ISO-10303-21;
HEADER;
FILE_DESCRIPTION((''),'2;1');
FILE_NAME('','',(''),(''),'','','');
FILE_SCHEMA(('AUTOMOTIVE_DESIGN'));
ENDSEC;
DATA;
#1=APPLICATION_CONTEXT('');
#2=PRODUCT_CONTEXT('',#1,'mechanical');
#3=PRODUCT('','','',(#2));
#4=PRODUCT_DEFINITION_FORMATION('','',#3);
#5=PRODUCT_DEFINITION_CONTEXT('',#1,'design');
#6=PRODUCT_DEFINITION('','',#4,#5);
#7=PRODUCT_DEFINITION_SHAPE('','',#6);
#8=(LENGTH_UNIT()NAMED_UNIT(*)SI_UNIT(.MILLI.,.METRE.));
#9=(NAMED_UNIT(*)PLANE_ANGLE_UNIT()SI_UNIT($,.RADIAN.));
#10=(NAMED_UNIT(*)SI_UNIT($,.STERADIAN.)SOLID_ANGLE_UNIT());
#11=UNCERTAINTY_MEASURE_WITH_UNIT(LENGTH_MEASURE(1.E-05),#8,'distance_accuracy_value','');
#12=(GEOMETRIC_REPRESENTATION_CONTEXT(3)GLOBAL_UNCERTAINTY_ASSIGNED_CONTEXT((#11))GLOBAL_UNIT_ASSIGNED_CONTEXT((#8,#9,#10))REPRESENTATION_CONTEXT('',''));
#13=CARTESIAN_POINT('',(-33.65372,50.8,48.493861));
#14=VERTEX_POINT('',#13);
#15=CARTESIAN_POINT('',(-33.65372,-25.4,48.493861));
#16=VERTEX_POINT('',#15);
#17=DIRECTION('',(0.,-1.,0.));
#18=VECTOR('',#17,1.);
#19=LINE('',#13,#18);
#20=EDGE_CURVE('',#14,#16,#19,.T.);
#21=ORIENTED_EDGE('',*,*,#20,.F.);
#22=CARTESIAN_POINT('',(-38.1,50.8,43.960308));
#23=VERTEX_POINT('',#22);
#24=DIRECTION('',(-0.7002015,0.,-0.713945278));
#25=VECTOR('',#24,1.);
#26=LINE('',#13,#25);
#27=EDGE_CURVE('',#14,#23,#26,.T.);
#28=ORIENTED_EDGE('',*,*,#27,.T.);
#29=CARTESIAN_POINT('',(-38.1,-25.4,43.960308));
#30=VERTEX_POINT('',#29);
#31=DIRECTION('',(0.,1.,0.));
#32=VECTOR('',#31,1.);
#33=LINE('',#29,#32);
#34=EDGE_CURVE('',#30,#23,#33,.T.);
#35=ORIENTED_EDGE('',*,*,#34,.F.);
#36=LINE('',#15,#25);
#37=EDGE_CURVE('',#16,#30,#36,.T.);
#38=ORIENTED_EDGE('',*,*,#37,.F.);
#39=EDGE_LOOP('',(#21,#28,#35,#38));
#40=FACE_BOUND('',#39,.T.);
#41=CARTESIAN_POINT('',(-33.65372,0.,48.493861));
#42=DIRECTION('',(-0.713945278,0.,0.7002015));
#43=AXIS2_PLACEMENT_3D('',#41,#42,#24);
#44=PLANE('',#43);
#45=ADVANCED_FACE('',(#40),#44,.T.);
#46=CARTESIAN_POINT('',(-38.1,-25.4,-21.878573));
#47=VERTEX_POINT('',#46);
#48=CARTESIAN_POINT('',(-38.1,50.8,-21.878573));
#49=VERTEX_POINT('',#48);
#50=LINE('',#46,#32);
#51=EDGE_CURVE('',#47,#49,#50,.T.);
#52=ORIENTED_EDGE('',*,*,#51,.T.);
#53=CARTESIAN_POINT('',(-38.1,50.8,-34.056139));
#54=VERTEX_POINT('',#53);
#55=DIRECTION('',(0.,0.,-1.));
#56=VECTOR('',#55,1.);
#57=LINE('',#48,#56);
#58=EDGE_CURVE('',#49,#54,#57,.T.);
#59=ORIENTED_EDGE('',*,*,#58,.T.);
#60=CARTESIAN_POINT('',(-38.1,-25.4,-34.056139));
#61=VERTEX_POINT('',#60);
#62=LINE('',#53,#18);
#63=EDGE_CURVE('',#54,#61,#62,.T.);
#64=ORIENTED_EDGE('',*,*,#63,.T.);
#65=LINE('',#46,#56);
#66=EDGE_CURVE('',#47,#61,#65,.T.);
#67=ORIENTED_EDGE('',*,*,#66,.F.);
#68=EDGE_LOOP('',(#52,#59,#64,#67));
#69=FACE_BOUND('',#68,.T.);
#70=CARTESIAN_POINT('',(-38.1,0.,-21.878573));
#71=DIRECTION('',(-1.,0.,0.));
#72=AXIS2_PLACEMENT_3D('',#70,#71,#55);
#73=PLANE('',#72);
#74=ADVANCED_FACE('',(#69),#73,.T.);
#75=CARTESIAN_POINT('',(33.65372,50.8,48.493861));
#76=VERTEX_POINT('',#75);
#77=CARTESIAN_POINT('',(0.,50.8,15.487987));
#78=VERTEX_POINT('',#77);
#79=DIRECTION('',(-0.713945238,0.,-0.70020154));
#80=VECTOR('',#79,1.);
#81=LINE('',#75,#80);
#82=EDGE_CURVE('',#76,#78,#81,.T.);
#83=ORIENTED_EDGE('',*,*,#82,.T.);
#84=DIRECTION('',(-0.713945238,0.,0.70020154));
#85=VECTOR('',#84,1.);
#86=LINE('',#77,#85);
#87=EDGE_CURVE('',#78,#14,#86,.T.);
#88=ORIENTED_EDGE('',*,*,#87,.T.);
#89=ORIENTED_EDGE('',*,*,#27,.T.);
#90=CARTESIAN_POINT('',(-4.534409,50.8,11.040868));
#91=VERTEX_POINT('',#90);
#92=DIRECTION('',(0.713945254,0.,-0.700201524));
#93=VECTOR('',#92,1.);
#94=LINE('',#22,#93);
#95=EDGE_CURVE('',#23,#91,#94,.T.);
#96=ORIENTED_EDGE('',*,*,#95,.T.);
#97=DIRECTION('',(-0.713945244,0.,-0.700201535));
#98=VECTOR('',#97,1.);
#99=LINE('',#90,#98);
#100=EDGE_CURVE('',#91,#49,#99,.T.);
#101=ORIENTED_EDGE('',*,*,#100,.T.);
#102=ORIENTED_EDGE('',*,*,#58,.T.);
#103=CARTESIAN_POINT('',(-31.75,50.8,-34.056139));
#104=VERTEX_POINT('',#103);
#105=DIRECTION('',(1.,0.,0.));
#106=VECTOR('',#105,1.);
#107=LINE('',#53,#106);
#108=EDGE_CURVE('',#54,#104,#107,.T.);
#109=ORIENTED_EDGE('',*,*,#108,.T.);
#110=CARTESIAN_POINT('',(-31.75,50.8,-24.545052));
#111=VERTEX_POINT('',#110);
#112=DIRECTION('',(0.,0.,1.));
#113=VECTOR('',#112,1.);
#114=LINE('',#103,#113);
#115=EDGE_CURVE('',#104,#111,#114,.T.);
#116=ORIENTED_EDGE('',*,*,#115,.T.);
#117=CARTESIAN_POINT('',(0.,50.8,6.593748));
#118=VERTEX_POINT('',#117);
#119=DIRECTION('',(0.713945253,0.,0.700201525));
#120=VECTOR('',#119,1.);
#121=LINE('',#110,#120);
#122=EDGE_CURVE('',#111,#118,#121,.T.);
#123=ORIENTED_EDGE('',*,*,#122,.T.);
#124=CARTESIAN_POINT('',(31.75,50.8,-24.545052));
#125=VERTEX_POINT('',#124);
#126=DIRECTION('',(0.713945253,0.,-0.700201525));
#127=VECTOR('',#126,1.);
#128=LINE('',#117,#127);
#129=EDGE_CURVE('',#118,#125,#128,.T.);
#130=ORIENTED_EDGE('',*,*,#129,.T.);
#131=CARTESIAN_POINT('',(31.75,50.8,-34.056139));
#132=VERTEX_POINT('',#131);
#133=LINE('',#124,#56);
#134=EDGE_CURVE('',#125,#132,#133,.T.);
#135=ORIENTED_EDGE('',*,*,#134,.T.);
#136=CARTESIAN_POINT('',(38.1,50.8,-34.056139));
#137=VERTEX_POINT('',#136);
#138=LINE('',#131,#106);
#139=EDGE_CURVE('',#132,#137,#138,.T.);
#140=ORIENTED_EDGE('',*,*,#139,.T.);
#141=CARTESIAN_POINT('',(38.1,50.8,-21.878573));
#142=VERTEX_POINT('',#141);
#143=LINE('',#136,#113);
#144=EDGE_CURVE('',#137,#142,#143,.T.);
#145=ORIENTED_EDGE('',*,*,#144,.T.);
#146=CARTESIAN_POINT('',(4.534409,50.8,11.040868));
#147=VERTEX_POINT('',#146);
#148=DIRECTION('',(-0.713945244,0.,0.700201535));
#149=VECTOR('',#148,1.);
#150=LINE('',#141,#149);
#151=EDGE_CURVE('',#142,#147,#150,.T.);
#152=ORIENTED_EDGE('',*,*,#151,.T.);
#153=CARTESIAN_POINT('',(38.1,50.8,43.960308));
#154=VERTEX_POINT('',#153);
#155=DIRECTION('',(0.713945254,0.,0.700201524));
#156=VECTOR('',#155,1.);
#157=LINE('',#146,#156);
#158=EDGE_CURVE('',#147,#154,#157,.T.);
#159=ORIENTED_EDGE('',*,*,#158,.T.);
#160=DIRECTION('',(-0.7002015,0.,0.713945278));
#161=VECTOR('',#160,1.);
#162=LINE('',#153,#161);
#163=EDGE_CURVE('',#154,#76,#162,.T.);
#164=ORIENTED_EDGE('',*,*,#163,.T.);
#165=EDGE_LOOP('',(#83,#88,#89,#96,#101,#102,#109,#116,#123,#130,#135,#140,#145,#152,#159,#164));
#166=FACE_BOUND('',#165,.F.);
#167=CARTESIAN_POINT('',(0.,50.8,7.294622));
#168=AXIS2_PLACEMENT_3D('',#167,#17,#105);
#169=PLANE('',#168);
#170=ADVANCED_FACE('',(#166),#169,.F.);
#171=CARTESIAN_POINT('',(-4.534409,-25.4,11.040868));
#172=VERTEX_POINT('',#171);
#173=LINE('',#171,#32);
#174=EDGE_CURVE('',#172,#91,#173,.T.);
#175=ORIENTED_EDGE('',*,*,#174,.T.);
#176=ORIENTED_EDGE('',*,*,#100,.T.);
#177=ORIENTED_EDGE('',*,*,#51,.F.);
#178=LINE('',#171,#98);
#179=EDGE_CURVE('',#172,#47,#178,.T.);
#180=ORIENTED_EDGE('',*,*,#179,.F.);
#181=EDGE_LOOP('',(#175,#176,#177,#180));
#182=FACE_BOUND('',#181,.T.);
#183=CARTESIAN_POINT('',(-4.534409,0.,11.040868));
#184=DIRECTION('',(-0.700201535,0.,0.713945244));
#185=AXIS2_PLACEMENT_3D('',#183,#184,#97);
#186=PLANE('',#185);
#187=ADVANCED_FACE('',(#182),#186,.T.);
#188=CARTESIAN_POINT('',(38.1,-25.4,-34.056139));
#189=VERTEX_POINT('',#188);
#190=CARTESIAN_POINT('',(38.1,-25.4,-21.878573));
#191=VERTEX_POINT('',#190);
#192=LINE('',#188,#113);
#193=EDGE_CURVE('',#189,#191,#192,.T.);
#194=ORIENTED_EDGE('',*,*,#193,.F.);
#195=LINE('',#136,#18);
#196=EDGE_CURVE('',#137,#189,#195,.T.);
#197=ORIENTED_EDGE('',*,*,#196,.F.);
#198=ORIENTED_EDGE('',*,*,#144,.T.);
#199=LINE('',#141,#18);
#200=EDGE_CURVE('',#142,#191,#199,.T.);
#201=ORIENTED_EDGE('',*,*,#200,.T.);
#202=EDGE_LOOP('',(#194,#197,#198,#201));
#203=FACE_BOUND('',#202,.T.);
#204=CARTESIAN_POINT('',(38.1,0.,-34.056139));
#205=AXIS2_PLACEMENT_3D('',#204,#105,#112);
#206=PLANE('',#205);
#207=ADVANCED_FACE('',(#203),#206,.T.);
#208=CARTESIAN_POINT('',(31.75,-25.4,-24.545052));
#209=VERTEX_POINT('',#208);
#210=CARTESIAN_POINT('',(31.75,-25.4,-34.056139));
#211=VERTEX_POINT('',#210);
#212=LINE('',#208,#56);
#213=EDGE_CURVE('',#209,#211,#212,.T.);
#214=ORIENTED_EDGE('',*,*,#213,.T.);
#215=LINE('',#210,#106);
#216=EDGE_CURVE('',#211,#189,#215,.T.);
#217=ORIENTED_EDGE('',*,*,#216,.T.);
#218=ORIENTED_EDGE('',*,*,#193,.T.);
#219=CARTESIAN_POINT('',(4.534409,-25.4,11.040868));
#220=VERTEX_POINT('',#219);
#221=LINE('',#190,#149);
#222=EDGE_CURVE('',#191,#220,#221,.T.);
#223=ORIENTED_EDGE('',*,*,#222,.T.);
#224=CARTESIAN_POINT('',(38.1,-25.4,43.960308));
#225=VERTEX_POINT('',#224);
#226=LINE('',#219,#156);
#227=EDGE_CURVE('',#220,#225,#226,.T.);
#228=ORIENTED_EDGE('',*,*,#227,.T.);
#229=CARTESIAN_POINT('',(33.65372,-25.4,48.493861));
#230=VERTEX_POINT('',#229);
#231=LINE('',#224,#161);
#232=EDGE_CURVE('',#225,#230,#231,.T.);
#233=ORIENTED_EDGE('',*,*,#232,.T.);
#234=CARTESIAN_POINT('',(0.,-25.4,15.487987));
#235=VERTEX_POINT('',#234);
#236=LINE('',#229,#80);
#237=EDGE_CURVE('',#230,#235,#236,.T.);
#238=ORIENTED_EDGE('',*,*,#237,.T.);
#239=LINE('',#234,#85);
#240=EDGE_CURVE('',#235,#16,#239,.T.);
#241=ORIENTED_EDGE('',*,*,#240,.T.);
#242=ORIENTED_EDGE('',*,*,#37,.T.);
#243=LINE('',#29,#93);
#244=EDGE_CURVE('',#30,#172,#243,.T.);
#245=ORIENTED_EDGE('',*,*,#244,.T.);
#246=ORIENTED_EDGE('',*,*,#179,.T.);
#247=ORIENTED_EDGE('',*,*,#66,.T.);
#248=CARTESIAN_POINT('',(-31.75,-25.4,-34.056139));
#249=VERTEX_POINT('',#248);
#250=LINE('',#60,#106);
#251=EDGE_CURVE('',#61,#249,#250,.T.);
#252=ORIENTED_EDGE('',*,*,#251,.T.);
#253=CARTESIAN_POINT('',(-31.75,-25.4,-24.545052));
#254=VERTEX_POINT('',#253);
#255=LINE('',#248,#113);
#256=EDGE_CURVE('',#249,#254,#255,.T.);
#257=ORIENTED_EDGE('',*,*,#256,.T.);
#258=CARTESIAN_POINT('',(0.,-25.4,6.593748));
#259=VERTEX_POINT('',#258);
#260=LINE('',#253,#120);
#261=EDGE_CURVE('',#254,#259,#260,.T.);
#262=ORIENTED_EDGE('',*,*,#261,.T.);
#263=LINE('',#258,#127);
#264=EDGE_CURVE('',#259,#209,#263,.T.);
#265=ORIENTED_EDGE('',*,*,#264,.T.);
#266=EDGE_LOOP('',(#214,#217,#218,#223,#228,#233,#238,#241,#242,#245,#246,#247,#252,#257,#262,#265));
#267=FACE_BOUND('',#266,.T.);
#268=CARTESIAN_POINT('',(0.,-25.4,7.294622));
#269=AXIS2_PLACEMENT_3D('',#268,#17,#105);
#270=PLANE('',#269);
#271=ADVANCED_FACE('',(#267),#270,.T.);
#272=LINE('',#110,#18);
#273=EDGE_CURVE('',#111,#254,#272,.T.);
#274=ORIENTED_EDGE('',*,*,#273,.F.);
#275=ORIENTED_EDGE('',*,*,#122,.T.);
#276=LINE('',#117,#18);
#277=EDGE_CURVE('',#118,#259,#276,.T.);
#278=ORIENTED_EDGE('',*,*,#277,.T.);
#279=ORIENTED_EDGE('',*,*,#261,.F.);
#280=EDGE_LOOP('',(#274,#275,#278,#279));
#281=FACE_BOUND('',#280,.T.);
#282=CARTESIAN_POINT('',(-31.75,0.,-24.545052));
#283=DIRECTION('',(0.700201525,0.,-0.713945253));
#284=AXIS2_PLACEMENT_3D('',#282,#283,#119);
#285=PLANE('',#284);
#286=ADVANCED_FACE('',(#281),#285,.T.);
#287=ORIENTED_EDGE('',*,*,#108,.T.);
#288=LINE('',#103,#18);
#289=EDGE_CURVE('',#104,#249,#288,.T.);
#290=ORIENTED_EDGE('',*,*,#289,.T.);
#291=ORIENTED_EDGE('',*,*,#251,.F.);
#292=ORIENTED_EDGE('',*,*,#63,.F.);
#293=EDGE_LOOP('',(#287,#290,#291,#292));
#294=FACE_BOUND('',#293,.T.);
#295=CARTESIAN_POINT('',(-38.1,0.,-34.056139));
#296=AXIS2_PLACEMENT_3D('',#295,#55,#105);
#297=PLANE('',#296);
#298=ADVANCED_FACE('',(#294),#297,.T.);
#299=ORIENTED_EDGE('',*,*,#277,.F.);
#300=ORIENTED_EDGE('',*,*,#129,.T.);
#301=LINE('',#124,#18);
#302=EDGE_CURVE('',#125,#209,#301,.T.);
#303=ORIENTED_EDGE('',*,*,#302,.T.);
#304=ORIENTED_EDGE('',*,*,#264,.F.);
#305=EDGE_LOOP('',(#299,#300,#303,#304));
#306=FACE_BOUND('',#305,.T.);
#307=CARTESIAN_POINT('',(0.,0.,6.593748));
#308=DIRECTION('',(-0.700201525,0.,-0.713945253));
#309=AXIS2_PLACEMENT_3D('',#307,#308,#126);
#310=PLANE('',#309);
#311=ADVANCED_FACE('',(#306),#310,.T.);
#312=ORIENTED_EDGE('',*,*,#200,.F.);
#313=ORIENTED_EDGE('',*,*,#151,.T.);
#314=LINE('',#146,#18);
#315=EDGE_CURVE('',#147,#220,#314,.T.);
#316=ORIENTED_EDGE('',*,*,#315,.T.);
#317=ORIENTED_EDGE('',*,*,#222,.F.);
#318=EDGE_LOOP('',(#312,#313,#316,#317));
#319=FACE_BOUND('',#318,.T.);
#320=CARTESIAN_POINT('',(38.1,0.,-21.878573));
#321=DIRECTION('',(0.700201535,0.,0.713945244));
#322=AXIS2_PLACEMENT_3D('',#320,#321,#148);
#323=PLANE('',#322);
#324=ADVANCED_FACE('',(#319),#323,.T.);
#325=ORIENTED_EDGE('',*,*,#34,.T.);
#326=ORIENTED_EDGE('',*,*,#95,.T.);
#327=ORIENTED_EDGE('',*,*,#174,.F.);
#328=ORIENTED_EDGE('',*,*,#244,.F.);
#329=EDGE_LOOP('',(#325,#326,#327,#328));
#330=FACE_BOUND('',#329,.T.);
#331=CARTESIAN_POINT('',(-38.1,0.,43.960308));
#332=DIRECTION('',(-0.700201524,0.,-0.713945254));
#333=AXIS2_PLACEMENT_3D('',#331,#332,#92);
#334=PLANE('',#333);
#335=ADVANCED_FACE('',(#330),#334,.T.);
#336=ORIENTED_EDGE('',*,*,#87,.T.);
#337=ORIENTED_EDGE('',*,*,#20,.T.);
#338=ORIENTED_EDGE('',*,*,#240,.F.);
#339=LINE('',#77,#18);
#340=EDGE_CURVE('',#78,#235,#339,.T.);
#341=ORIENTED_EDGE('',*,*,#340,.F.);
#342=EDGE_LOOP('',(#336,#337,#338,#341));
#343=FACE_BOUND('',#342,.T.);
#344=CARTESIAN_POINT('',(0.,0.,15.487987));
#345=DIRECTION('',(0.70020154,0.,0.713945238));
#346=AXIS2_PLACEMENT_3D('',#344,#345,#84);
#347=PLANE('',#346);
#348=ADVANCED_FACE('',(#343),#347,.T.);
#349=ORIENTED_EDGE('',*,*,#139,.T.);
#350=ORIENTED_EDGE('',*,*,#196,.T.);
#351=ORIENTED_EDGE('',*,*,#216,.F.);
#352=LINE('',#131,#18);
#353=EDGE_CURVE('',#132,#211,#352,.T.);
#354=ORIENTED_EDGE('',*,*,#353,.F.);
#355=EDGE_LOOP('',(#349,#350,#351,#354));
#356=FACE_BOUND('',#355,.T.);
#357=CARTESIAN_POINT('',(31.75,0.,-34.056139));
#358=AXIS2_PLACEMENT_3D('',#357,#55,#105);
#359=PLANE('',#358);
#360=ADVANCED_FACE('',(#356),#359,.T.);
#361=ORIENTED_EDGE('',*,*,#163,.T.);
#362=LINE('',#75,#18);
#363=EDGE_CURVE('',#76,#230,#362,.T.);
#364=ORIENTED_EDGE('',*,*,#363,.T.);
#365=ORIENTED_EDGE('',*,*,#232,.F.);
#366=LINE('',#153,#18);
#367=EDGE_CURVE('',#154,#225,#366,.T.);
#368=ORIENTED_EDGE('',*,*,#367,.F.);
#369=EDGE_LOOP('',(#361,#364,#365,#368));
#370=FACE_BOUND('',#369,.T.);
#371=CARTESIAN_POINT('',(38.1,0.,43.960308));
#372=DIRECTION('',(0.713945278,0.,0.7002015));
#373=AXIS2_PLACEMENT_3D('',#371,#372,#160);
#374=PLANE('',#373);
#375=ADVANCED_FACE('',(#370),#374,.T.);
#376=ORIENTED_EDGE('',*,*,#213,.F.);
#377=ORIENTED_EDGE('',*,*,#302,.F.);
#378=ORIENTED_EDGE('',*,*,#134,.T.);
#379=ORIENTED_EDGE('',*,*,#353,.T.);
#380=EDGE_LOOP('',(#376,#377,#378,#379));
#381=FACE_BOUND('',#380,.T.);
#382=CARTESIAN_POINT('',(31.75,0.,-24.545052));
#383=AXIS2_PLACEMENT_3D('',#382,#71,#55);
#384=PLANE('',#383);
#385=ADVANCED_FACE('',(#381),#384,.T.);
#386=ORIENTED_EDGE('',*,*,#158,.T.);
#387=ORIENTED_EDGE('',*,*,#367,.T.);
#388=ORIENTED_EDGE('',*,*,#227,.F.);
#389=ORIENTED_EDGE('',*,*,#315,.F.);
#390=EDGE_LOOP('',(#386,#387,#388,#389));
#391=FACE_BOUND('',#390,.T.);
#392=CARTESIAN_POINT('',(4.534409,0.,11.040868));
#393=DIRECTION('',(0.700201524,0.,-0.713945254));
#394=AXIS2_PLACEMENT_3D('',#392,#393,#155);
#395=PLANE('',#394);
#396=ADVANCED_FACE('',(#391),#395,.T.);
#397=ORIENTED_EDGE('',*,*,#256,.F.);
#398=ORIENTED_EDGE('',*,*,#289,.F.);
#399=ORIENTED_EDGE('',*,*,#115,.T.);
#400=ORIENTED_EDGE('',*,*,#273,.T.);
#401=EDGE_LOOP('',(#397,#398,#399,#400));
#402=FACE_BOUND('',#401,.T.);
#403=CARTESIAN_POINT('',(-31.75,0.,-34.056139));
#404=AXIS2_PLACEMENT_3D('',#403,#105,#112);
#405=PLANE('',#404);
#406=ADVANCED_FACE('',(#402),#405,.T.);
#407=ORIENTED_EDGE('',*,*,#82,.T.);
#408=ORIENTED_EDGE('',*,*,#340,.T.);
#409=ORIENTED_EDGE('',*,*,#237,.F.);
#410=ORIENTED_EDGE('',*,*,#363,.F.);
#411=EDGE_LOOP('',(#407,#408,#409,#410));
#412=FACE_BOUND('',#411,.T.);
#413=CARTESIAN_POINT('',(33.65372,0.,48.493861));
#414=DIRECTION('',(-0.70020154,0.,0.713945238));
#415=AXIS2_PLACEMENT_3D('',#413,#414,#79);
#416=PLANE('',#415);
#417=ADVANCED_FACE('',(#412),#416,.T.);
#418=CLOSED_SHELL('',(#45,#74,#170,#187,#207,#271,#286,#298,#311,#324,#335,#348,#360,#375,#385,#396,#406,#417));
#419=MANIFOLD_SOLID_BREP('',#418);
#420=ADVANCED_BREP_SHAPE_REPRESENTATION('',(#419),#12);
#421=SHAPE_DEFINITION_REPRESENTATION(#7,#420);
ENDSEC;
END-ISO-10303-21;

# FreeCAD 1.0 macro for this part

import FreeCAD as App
import Part
import Sketcher

V = App.Vector
Q = App.Units.Quantity

doc = App.newDocument("Part")
body = doc.addObject("PartDesign::Body", "Body")

# Sketch on XZ plane
sketch1 = body.newObject("Sketcher::SketchObject", "Sketch")
sketch1.AttachmentSupport = (doc.getObject("XZ_Plane"), [""])
sketch1.MapMode = "FlatFace"
sketch1.addGeometry(Part.LineSegment(V(-38.1, -21.878573, 0), V(-38.1, -34.056139, 0)), False)
sketch1.addGeometry(Part.LineSegment(V(-38.1, -34.056139, 0), V(-31.75, -34.056139, 0)), False)
sketch1.addGeometry(Part.LineSegment(V(-31.75, -34.056139, 0), V(-31.75, -24.545052, 0)), False)
sketch1.addGeometry(Part.LineSegment(V(-31.75, -24.545052, 0), V(0, 6.593748, 0)), False)
sketch1.addGeometry(Part.LineSegment(V(0, 6.593748, 0), V(31.75, -24.545052, 0)), False)
sketch1.addGeometry(Part.LineSegment(V(31.75, -24.545052, 0), V(31.75, -34.056139, 0)), False)
sketch1.addGeometry(Part.LineSegment(V(31.75, -34.056139, 0), V(38.1, -34.056139, 0)), False)
sketch1.addGeometry(Part.LineSegment(V(38.1, -34.056139, 0), V(38.1, -21.878573, 0)), False)
sketch1.addGeometry(Part.LineSegment(V(38.1, -21.878573, 0), V(4.534409, 11.040868, 0)), False)
sketch1.addGeometry(Part.LineSegment(V(4.534409, 11.040868, 0), V(38.1, 43.960308, 0)), False)
sketch1.addGeometry(Part.LineSegment(V(38.1, 43.960308, 0), V(33.65372, 48.493861, 0)), False)
sketch1.addGeometry(Part.LineSegment(V(33.65372, 48.493861, 0), V(0, 15.487987, 0)), False)
sketch1.addGeometry(Part.LineSegment(V(0, 15.487987, 0), V(-33.65372, 48.493861, 0)), False)
sketch1.addGeometry(Part.LineSegment(V(-33.65372, 48.493861, 0), V(-38.1, 43.960308, 0)), False)
sketch1.addGeometry(Part.LineSegment(V(-38.1, 43.960308, 0), V(-4.534409, 11.040868, 0)), False)
sketch1.addGeometry(Part.LineSegment(V(-4.534409, 11.040868, 0), V(-38.1, -21.878573, 0)), False)
sketch1.addConstraint(Sketcher.Constraint("Coincident", 0, 2, 1, 1))
sketch1.addConstraint(Sketcher.Constraint("Coincident", 1, 2, 2, 1))
sketch1.addConstraint(Sketcher.Constraint("Coincident", 2, 2, 3, 1))
sketch1.addConstraint(Sketcher.Constraint("Coincident", 3, 2, 4, 1))
sketch1.addConstraint(Sketcher.Constraint("Coincident", 4, 2, 5, 1))
sketch1.addConstraint(Sketcher.Constraint("Coincident", 5, 2, 6, 1))
sketch1.addConstraint(Sketcher.Constraint("Coincident", 6, 2, 7, 1))
sketch1.addConstraint(Sketcher.Constraint("Coincident", 7, 2, 8, 1))
sketch1.addConstraint(Sketcher.Constraint("Coincident", 8, 2, 9, 1))
sketch1.addConstraint(Sketcher.Constraint("Coincident", 9, 2, 10, 1))
sketch1.addConstraint(Sketcher.Constraint("Coincident", 10, 2, 11, 1))
sketch1.addConstraint(Sketcher.Constraint("Coincident", 11, 2, 12, 1))
sketch1.addConstraint(Sketcher.Constraint("Coincident", 12, 2, 13, 1))
sketch1.addConstraint(Sketcher.Constraint("Coincident", 13, 2, 14, 1))
sketch1.addConstraint(Sketcher.Constraint("Coincident", 14, 2, 15, 1))
sketch1.addConstraint(Sketcher.Constraint("Coincident", 15, 2, 0, 1))
sketch1.addConstraint(Sketcher.Constraint("Vertical", 0))
sketch1.addConstraint(Sketcher.Constraint("Horizontal", 1))
sketch1.addConstraint(Sketcher.Constraint("Vertical", 2))
sketch1.addConstraint(Sketcher.Constraint("Vertical", 5))
sketch1.addConstraint(Sketcher.Constraint("Horizontal", 6))
sketch1.addConstraint(Sketcher.Constraint("Vertical", 7))
sketch1.addConstraint(Sketcher.Constraint("Symmetric", 2, 2, 4, 2, -2))
sketch1.addConstraint(Sketcher.Constraint("Symmetric", 0, 2, 6, 2, -2))
sketch1.addConstraint(Sketcher.Constraint("Symmetric", 10, 2, 12, 2, -2))
sketch1.addConstraint(Sketcher.Constraint("Symmetric", 9, 2, 13, 2, -2))
sketch1.addConstraint(Sketcher.Constraint("Symmetric", 8, 2, 14, 2, -2))
sketch1.addConstraint(Sketcher.Constraint("PointOnObject", 3, 2, -2))
sketch1.addConstraint(Sketcher.Constraint("PointOnObject", 11, 2, -2))
sketch1.addConstraint(Sketcher.Constraint("Parallel", 4, 8))
sketch1.addConstraint(Sketcher.Constraint("Parallel", 3, 9))
sketch1.addConstraint(Sketcher.Constraint("Perpendicular", 9, 10))
sketch1.addConstraint(Sketcher.Constraint("Perpendicular", 10, 11))
sketch1.addConstraint(Sketcher.Constraint("Parallel", 11, 15))
sketch1.addConstraint(Sketcher.Constraint("Vertical", 7, 2, 9, 2))
sketch1.addConstraint(Sketcher.Constraint("DistanceX", 1, 1, 1, 2, Q("0.25 in")))
sketch1.addConstraint(Sketcher.Constraint("DistanceX", 0, 2, -1, 1, Q("1.5 in")))
sketch1.addConstraint(Sketcher.Constraint("Distance", 10, Q("0.25 in")))
sketch1.addConstraint(Sketcher.Constraint("DistanceY", 2, 2, 3, 2, Q("31.1388 mm")))
sketch1.addConstraint(Sketcher.Constraint("DistanceY", 0, 2, 0, 1, Q("12.177566 mm")))
sketch1.addConstraint(Sketcher.Constraint("DistanceY", 2, 1, 2, 2, Q("9.511087 mm")))
sketch1.addConstraint(Sketcher.Constraint("DistanceY", 0, 2, -1, 1, Q("34.056139 mm")))
sketch1.addConstraint(Sketcher.Constraint("DistanceX", -1, 1, 8, 2, Q("4.534409 mm")))
pad1 = body.newObject("PartDesign::Pad", "Pad")
pad1.Profile = sketch1
pad1.Type = "TwoLengths"
pad1.Length = Q("1 in")
pad1.Length2 = Q("2 in")

doc.recompute()
